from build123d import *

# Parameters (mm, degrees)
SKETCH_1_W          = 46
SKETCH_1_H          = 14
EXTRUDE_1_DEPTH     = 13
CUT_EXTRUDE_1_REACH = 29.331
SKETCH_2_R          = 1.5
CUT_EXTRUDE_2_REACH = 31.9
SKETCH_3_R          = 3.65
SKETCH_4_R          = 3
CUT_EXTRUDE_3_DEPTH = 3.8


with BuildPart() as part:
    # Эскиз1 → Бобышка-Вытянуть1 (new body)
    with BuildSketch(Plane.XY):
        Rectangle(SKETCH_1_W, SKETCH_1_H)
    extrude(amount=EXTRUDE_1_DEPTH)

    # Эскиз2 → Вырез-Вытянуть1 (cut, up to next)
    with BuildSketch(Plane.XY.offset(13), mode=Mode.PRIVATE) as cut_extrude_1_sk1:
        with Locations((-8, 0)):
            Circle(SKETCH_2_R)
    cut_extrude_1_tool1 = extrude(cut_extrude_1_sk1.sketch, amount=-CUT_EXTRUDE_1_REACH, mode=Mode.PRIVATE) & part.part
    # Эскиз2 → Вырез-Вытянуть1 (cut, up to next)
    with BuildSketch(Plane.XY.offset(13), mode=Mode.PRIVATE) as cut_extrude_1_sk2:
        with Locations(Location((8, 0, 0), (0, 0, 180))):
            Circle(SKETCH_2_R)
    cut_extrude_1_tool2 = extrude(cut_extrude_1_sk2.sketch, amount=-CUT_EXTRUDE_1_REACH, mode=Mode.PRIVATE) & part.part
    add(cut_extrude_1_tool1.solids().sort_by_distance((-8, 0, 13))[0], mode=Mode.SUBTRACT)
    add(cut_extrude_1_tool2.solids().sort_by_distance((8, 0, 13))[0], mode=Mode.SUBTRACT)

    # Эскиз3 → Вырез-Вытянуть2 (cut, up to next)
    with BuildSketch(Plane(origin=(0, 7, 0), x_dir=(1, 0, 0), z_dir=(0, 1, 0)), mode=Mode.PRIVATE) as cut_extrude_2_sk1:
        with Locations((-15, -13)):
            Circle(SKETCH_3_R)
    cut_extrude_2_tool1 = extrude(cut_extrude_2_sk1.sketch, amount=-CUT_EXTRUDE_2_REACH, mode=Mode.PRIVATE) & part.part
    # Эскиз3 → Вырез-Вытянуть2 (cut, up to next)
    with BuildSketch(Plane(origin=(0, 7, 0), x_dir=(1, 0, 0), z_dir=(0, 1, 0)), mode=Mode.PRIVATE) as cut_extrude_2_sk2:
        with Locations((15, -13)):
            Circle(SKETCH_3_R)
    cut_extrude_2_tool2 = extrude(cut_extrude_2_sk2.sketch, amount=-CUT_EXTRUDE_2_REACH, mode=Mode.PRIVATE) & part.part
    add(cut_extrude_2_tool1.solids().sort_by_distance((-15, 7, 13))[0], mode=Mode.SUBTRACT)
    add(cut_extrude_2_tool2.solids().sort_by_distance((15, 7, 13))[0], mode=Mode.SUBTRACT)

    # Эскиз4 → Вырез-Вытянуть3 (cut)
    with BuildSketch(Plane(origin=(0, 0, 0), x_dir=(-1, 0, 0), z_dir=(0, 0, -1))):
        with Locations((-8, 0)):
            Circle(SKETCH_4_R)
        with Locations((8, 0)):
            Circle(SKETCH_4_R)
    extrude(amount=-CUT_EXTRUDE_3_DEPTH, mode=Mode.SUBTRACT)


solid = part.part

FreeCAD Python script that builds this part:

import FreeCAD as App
import Part
import Sketcher

V = App.Vector
Q = App.Units.Quantity

doc = App.newDocument("Part")
body = doc.addObject("PartDesign::Body", "Body")

sketch1 = body.newObject("Sketcher::SketchObject", "Sketch")
sketch1.AttachmentSupport = (doc.getObject("XY_Plane"), [""])
sketch1.MapMode = "FlatFace"
sketch1.addGeometry(Part.LineSegment(V(-23, 7, 0), V(-23, -7, 0)), False)
sketch1.addGeometry(Part.LineSegment(V(-23, -7, 0), V(23, -7, 0)), False)
sketch1.addGeometry(Part.LineSegment(V(23, -7, 0), V(23, 7, 0)), False)
sketch1.addGeometry(Part.LineSegment(V(23, 7, 0), V(-23, 7, 0)), False)
sketch1.addConstraint(Sketcher.Constraint("Coincident", 0, 2, 1, 1))
sketch1.addConstraint(Sketcher.Constraint("Coincident", 1, 2, 2, 1))
sketch1.addConstraint(Sketcher.Constraint("Coincident", 2, 2, 3, 1))
sketch1.addConstraint(Sketcher.Constraint("Coincident", 3, 2, 0, 1))
sketch1.addConstraint(Sketcher.Constraint("Vertical", 0))
sketch1.addConstraint(Sketcher.Constraint("Horizontal", 1))
sketch1.addConstraint(Sketcher.Constraint("Vertical", 2))
sketch1.addConstraint(Sketcher.Constraint("Horizontal", 3))
sketch1.addConstraint(Sketcher.Constraint("Symmetric", 0, 2, 2, 2, -1, 1))
sketch1.addConstraint(Sketcher.Constraint("DistanceX", 1, 1, 1, 2, Q("46 mm")))
sketch1.addConstraint(Sketcher.Constraint("DistanceY", 0, 2, 0, 1, Q("14 mm")))
pad1 = body.newObject("PartDesign::Pad", "Pad")
pad1.Profile = sketch1
pad1.Length = 13

sketch2 = body.newObject("Sketcher::SketchObject", "Sketch001")
sketch2.AttachmentSupport = (doc.getObject("XY_Plane"), [""])
sketch2.MapMode = "FlatFace"
sketch2.AttachmentOffset = App.Placement(V(0, 0, 13), App.Rotation())
sketch2.addGeometry(Part.Circle(V(-8, 0, 0), V(0, 0, 1), 1.5), False)
sketch2.addConstraint(Sketcher.Constraint("PointOnObject", 0, 3, -1))
sketch2.addConstraint(Sketcher.Constraint("Diameter", 0, Q("3 mm")))
sketch2.addConstraint(Sketcher.Constraint("DistanceX", 0, 3, -1, 1, Q("8 mm")))
pocket1 = body.newObject("PartDesign::Pocket", "Pocket")
pocket1.Profile = sketch2
pocket1.Type = "UpToFirst"

sketch3 = body.newObject("Sketcher::SketchObject", "Sketch002")
sketch3.AttachmentSupport = (doc.getObject("XY_Plane"), [""])
sketch3.MapMode = "FlatFace"
sketch3.AttachmentOffset = App.Placement(V(0, 0, 13), App.Rotation())
sketch3.addGeometry(Part.Circle(V(8, 0, 0), V(0, 0, 1), 1.5), False)
sketch3.addConstraint(Sketcher.Constraint("PointOnObject", 0, 3, -1))
sketch3.addConstraint(Sketcher.Constraint("Diameter", 0, Q("3 mm")))
sketch3.addConstraint(Sketcher.Constraint("DistanceX", -1, 1, 0, 3, Q("8 mm")))
pocket2 = body.newObject("PartDesign::Pocket", "Pocket001")
pocket2.Profile = sketch3
pocket2.Type = "UpToFirst"

sketch4 = body.newObject("Sketcher::SketchObject", "Sketch003")
sketch4.AttachmentSupport = (doc.getObject("XZ_Plane"), [""])
sketch4.MapMode = "FlatFace"
sketch4.AttachmentOffset = App.Placement(V(0, 0, -7), App.Rotation())
sketch4.addGeometry(Part.Circle(V(-15, 13, 0), V(0, 0, 1), 3.6), False)
sketch4.addConstraint(Sketcher.Constraint("Diameter", 0, Q("7.3 mm")))
sketch4.addConstraint(Sketcher.Constraint("DistanceX", 0, 3, -1, 1, Q("15 mm")))
sketch4.addConstraint(Sketcher.Constraint("DistanceY", -1, 1, 0, 3, Q("13 mm")))
pocket3 = body.newObject("PartDesign::Pocket", "Pocket002")
pocket3.Profile = sketch4
pocket3.Type = "UpToFirst"
pocket3.Reversed = True

sketch5 = body.newObject("Sketcher::SketchObject", "Sketch004")
sketch5.AttachmentSupport = (doc.getObject("XZ_Plane"), [""])
sketch5.MapMode = "FlatFace"
sketch5.AttachmentOffset = App.Placement(V(0, 0, -7), App.Rotation())
sketch5.addGeometry(Part.Circle(V(15, 13, 0), V(0, 0, 1), 3.6), False)
sketch5.addConstraint(Sketcher.Constraint("Diameter", 0, Q("7.3 mm")))
sketch5.addConstraint(Sketcher.Constraint("DistanceX", -1, 1, 0, 3, Q("15 mm")))
sketch5.addConstraint(Sketcher.Constraint("DistanceY", -1, 1, 0, 3, Q("13 mm")))
pocket4 = body.newObject("PartDesign::Pocket", "Pocket003")
pocket4.Profile = sketch5
pocket4.Type = "UpToFirst"
pocket4.Reversed = True

sketch6 = body.newObject("Sketcher::SketchObject", "Sketch005")
sketch6.AttachmentSupport = (doc.getObject("XY_Plane"), [""])
sketch6.MapMode = "FlatFace"
sketch6.addGeometry(Part.Circle(V(8, 0, 0), V(0, 0, 1), 3), False)
sketch6.addGeometry(Part.Circle(V(-8, 0, 0), V(0, 0, 1), 3), False)
sketch6.addConstraint(Sketcher.Constraint("Equal", 0, 1))
sketch6.addConstraint(Sketcher.Constraint("Symmetric", 0, 3, 1, 3, -1, 1))
sketch6.addConstraint(Sketcher.Constraint("PointOnObject", 0, 3, -1))
sketch6.addConstraint(Sketcher.Constraint("Diameter", 0, Q("6 mm")))
sketch6.addConstraint(Sketcher.Constraint("DistanceX", -1, 1, 0, 3, Q("8 mm")))
pocket5 = body.newObject("PartDesign::Pocket", "Pocket004")
pocket5.Profile = sketch6
pocket5.Length = 3.8
pocket5.Reversed = True

doc.recompute()
